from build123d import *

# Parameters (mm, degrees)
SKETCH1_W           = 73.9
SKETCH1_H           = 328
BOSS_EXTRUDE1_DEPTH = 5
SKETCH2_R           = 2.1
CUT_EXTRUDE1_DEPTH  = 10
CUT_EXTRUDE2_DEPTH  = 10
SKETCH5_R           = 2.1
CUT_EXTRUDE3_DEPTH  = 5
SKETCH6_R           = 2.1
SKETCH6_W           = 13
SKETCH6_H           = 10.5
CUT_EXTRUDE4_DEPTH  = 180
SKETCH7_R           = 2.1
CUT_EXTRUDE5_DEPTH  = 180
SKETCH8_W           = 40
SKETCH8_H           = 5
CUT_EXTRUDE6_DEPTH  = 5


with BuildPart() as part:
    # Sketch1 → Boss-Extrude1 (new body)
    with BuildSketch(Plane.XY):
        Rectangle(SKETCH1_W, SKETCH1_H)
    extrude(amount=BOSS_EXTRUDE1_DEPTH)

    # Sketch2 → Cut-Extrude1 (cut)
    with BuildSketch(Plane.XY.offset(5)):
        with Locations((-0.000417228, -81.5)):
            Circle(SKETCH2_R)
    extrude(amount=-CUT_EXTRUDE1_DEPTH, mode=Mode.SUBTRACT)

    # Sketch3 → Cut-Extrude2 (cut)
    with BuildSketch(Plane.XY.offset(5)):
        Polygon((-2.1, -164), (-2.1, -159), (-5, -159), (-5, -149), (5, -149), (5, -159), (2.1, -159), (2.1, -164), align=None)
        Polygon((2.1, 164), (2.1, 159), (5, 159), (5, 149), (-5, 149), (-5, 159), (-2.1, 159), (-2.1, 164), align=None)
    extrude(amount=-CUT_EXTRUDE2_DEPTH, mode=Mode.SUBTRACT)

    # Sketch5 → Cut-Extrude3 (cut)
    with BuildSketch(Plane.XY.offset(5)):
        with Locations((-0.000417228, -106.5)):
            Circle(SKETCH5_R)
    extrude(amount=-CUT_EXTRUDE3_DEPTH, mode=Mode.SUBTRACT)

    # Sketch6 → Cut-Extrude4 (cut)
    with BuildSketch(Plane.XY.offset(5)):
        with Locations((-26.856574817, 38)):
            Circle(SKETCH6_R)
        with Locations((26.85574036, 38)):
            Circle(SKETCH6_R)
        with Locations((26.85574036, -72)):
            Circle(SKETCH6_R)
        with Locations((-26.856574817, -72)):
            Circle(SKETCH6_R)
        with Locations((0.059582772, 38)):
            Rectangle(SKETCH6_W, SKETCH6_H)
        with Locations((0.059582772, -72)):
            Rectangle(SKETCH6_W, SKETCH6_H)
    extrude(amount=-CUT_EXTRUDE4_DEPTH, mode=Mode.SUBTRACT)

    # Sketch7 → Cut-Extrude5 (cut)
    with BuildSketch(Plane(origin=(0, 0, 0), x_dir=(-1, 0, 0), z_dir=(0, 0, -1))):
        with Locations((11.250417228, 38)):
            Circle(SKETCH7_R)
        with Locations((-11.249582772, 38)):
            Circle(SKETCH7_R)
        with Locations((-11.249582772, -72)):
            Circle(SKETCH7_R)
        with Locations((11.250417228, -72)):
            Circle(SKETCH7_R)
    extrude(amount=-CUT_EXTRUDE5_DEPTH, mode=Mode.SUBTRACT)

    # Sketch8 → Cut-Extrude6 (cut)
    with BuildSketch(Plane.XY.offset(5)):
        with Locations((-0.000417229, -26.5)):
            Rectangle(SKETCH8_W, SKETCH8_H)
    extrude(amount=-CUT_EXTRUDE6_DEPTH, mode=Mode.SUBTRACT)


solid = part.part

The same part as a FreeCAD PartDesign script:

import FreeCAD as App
import Part
import Sketcher

V = App.Vector

doc = App.newDocument("Part")
params = doc.addObject("Spreadsheet::Sheet", "Params")
for row, (alias, value) in enumerate([
    ("sketch1_height", "328 mm"),
    ("sketch1_width", "73.9 mm"),
    ("pad1_length", "5 mm"),
    ("sketch2_diameter", "4.2 mm"),
    ("pocket1_length", "10 mm"),
    ("sketch3_width", "10 mm"),
    ("sketch3_height", "5 mm"),
    ("sketch3_width2", "4.2 mm"),
    ("pocket2_length", "10 mm"),
    ("sketch4_diameter", "4.2 mm"),
    ("pocket3_length", "5 mm"),
    ("sketch5_diameter", "4.2 mm"),
    ("sketch5_width", "13 mm"),
    ("sketch5_height", "10.5 mm"),
    ("pocket4_length", "180 mm"),
    ("sketch6_diameter", "4.2 mm"),
    ("pocket5_length", "180 mm"),
    ("sketch7_width", "40 mm"),
    ("sketch7_height", "5 mm"),
    ("pocket6_length", "5 mm"),
], start=1):
    params.set(f"A{row}", alias)
    params.set(f"B{row}", "=" + value)
    params.setAlias(f"B{row}", alias)

body = doc.addObject("PartDesign::Body", "Body")

# Sketch on XY plane
sketch1 = body.newObject("Sketcher::SketchObject", "Sketch")
sketch1.AttachmentSupport = (doc.getObject("XY_Plane"), [""])
sketch1.MapMode = "FlatFace"
sketch1.addGeometry([
    Part.LineSegment(V(-37, 164, 0), V(-37, -164, 0)),
    Part.LineSegment(V(-37, -164, 0), V(37, -164, 0)),
    Part.LineSegment(V(37, -164, 0), V(37, 164, 0)),
    Part.LineSegment(V(37, 164, 0), V(-37, 164, 0)),
], False)
sketch1.addConstraint([
    Sketcher.Constraint("Coincident", 0, 2, 1, 1),
    Sketcher.Constraint("Coincident", 1, 2, 2, 1),
    Sketcher.Constraint("Coincident", 2, 2, 3, 1),
    Sketcher.Constraint("Coincident", 3, 2, 0, 1),
    Sketcher.Constraint("Vertical", 0),
    Sketcher.Constraint("Horizontal", 1),
    Sketcher.Constraint("Vertical", 2),
    Sketcher.Constraint("Horizontal", 3),
    Sketcher.Constraint("Symmetric", 0, 2, 2, 2, -1, 1),
    Sketcher.Constraint("DistanceY", 0, 2, 0, 1, 328.0),
    Sketcher.Constraint("DistanceX", 1, 1, 1, 2, 73.9),
])
sketch1.setExpression("Constraints[9]", "Params.sketch1_height")
sketch1.setExpression("Constraints[10]", "Params.sketch1_width")
pad1 = body.newObject("PartDesign::Pad", "Pad")
pad1.Profile = sketch1
pad1.setExpression("Length", "Params.pad1_length")

# Sketch on XY plane
sketch2 = body.newObject("Sketcher::SketchObject", "Sketch001")
sketch2.AttachmentSupport = (doc.getObject("XY_Plane"), [""])
sketch2.MapMode = "FlatFace"
sketch2.AttachmentOffset = App.Placement(V(0, 0, 5), App.Rotation())
sketch2.addGeometry(Part.Circle(V(0, -81.5, 0), V(0, 0, 1), 2.1), False)
sketch2.addConstraint([
    Sketcher.Constraint("Diameter", 0, 4.2),
    Sketcher.Constraint("DistanceY", 0, 3, -1, 1, 81.5),
    Sketcher.Constraint("DistanceX", 0, 3, -1, 1, 0.000417),
])
sketch2.setExpression("Constraints[0]", "Params.sketch2_diameter")
pocket1 = body.newObject("PartDesign::Pocket", "Pocket")
pocket1.Profile = sketch2
pocket1.setExpression("Length", "Params.pocket1_length")

# Sketch on XY plane
sketch3 = body.newObject("Sketcher::SketchObject", "Sketch002")
sketch3.AttachmentSupport = (doc.getObject("XY_Plane"), [""])
sketch3.MapMode = "FlatFace"
sketch3.AttachmentOffset = App.Placement(V(0, 0, 5), App.Rotation())
sketch3.addGeometry([
    Part.LineSegment(V(-2.1, -159, 0), V(-2.1, -164, 0)),  # 0
    Part.LineSegment(V(-2.1, -164, 0), V(2.1, -164, 0)),  # 1
    Part.LineSegment(V(2.1, -164, 0), V(2.1, -159, 0)),  # 2
    Part.LineSegment(V(2.1, -159, 0), V(5, -159, 0)),  # 3
    Part.LineSegment(V(5, -159, 0), V(5, -149, 0)),  # 4
    Part.LineSegment(V(5, -149, 0), V(-5, -149, 0)),  # 5
    Part.LineSegment(V(-5, -149, 0), V(-5, -159, 0)),  # 6
    Part.LineSegment(V(-5, -159, 0), V(-2.1, -159, 0)),  # 7
    Part.LineSegment(V(2.1, 159, 0), V(2.1, 164, 0)),  # 8
    Part.LineSegment(V(2.1, 164, 0), V(-2.1, 164, 0)),  # 9
    Part.LineSegment(V(-2.1, 164, 0), V(-2.1, 159, 0)),  # 10
    Part.LineSegment(V(-2.1, 159, 0), V(-5, 159, 0)),  # 11
    Part.LineSegment(V(-5, 159, 0), V(-5, 149, 0)),  # 12
    Part.LineSegment(V(-5, 149, 0), V(5, 149, 0)),  # 13
    Part.LineSegment(V(5, 149, 0), V(5, 159, 0)),  # 14
    Part.LineSegment(V(5, 159, 0), V(2.1, 159, 0)),  # 15
], False)
sketch3.addConstraint([
    Sketcher.Constraint("Coincident", 0, 2, 1, 1),
    Sketcher.Constraint("Coincident", 1, 2, 2, 1),
    Sketcher.Constraint("Coincident", 2, 2, 3, 1),
    Sketcher.Constraint("Coincident", 3, 2, 4, 1),
    Sketcher.Constraint("Coincident", 4, 2, 5, 1),
    Sketcher.Constraint("Coincident", 5, 2, 6, 1),
    Sketcher.Constraint("Coincident", 6, 2, 7, 1),
    Sketcher.Constraint("Coincident", 7, 2, 0, 1),
    Sketcher.Constraint("Coincident", 8, 2, 9, 1),
    Sketcher.Constraint("Coincident", 9, 2, 10, 1),
    Sketcher.Constraint("Coincident", 10, 2, 11, 1),
    Sketcher.Constraint("Coincident", 11, 2, 12, 1),
    Sketcher.Constraint("Coincident", 12, 2, 13, 1),
    Sketcher.Constraint("Coincident", 13, 2, 14, 1),
    Sketcher.Constraint("Coincident", 14, 2, 15, 1),
    Sketcher.Constraint("Coincident", 15, 2, 8, 1),
    Sketcher.Constraint("Vertical", 0),
    Sketcher.Constraint("Horizontal", 1),
    Sketcher.Constraint("Vertical", 2),
    Sketcher.Constraint("Horizontal", 3),
    Sketcher.Constraint("Vertical", 4),
    Sketcher.Constraint("Horizontal", 5),
    Sketcher.Constraint("Vertical", 6),
    Sketcher.Constraint("Horizontal", 7),
    Sketcher.Constraint("Vertical", 8),
    Sketcher.Constraint("Horizontal", 9),
    Sketcher.Constraint("Vertical", 10),
    Sketcher.Constraint("Horizontal", 11),
    Sketcher.Constraint("Vertical", 12),
    Sketcher.Constraint("Horizontal", 13),
    Sketcher.Constraint("Vertical", 14),
    Sketcher.Constraint("Horizontal", 15),
    Sketcher.Constraint("Symmetric", 0, 2, 8, 2, -1, 1),
    Sketcher.Constraint("Symmetric", 2, 2, 10, 2, -1, 1),
    Sketcher.Constraint("Symmetric", 4, 2, 12, 2, -1, 1),
    Sketcher.Constraint("Symmetric", 6, 2, 14, 2, -1, 1),
    Sketcher.Constraint("Symmetric", 3, 2, 6, 2, -2),
    Sketcher.Constraint("Vertical", 2, 2, 8, 2),
    Sketcher.Constraint("Equal", 13, 4),
    Sketcher.Constraint("DistanceX", 5, 2, 5, 1, 10.0),
    Sketcher.Constraint("DistanceY", 0, 2, 0, 1, 5.0),
    Sketcher.Constraint("DistanceX", 1, 1, 1, 2, 4.2),
    Sketcher.Constraint("DistanceY", 0, 2, -1, 1, 164.0),
])
sketch3.setExpression("Constraints[39]", "Params.sketch3_width")
sketch3.setExpression("Constraints[40]", "Params.sketch3_height")
sketch3.setExpression("Constraints[41]", "Params.sketch3_width2")
pocket2 = body.newObject("PartDesign::Pocket", "Pocket001")
pocket2.Profile = sketch3
pocket2.setExpression("Length", "Params.pocket2_length")

# Sketch on XY plane
sketch4 = body.newObject("Sketcher::SketchObject", "Sketch003")
sketch4.AttachmentSupport = (doc.getObject("XY_Plane"), [""])
sketch4.MapMode = "FlatFace"
sketch4.AttachmentOffset = App.Placement(V(0, 0, 5), App.Rotation())
sketch4.addGeometry(Part.Circle(V(0, -106.5, 0), V(0, 0, 1), 2.1), False)
sketch4.addConstraint([
    Sketcher.Constraint("Diameter", 0, 4.2),
    Sketcher.Constraint("DistanceY", 0, 3, -1, 1, 106.5),
    Sketcher.Constraint("DistanceX", 0, 3, -1, 1, 0.000417),
])
sketch4.setExpression("Constraints[0]", "Params.sketch4_diameter")
pocket3 = body.newObject("PartDesign::Pocket", "Pocket002")
pocket3.Profile = sketch4
pocket3.setExpression("Length", "Params.pocket3_length")

# Sketch on XY plane
sketch5 = body.newObject("Sketcher::SketchObject", "Sketch004")
sketch5.AttachmentSupport = (doc.getObject("XY_Plane"), [""])
sketch5.MapMode = "FlatFace"
sketch5.AttachmentOffset = App.Placement(V(0, 0, 5), App.Rotation())
sketch5.addGeometry([
    Part.Circle(V(-26.9, 38, 0), V(0, 0, 1), 2.1),  # 0
    Part.Circle(V(26.9, 38, 0), V(0, 0, 1), 2.1),  # 1
    Part.Circle(V(26.9, -72, 0), V(0, 0, 1), 2.1),  # 2
    Part.Circle(V(-26.9, -72, 0), V(0, 0, 1), 2.1),  # 3
    Part.LineSegment(V(-6.4, 43.2, 0), V(-6.4, 32.8, 0)),  # 4
    Part.LineSegment(V(-6.4, 32.8, 0), V(6.6, 32.8, 0)),  # 5
    Part.LineSegment(V(6.6, 32.8, 0), V(6.6, 43.2, 0)),  # 6
    Part.LineSegment(V(6.6, 43.2, 0), V(-6.4, 43.2, 0)),  # 7
    Part.LineSegment(V(-6.4, -66.8, 0), V(-6.4, -77.2, 0)),  # 8
    Part.LineSegment(V(-6.4, -77.2, 0), V(6.6, -77.2, 0)),  # 9
    Part.LineSegment(V(6.6, -77.2, 0), V(6.6, -66.8, 0)),  # 10
    Part.LineSegment(V(6.6, -66.8, 0), V(-6.4, -66.8, 0)),  # 11
], False)
sketch5.addConstraint([
    Sketcher.Constraint("Coincident", 4, 2, 5, 1),
    Sketcher.Constraint("Coincident", 5, 2, 6, 1),
    Sketcher.Constraint("Coincident", 6, 2, 7, 1),
    Sketcher.Constraint("Coincident", 7, 2, 4, 1),
    Sketcher.Constraint("Coincident", 8, 2, 9, 1),
    Sketcher.Constraint("Coincident", 9, 2, 10, 1),
    Sketcher.Constraint("Coincident", 10, 2, 11, 1),
    Sketcher.Constraint("Coincident", 11, 2, 8, 1),
    Sketcher.Constraint("Vertical", 4),
    Sketcher.Constraint("Horizontal", 5),
    Sketcher.Constraint("Vertical", 6),
    Sketcher.Constraint("Horizontal", 7),
    Sketcher.Constraint("Vertical", 8),
    Sketcher.Constraint("Horizontal", 9),
    Sketcher.Constraint("Vertical", 10),
    Sketcher.Constraint("Horizontal", 11),
    Sketcher.Constraint("Equal", 0, 1),
    Sketcher.Constraint("Equal", 1, 2),
    Sketcher.Constraint("Equal", 2, 3),
    Sketcher.Constraint("Horizontal", 0, 3, 1, 3),
    Sketcher.Constraint("Horizontal", 2, 3, 3, 3),
    Sketcher.Constraint("Vertical", 1, 3, 2, 3),
    Sketcher.Constraint("Vertical", 0, 3, 3, 3),
    Sketcher.Constraint("Vertical", 7, 2, 8, 2),
    Sketcher.Constraint("Vertical", 6, 2, 9, 2),
    Sketcher.Constraint("Equal", 6, 8),
    Sketcher.Constraint("Diameter", 0, 4.2),
    Sketcher.Constraint("DistanceX", 5, 1, 5, 2, 13.0),
    Sketcher.Constraint("DistanceY", 4, 2, 4, 1, 10.5),
    Sketcher.Constraint("DistanceY", -1, 1, 0, 3, 38.0),
    Sketcher.Constraint("DistanceY", 2, 3, -1, 1, 72.0),
    Sketcher.Constraint("DistanceY", 8, 2, 4, 2, 110.0),
    Sketcher.Constraint("DistanceY", -1, 1, 4, 2, 32.75),
    Sketcher.Constraint("DistanceX", -1, 1, 1, 3, 26.85574),
    Sketcher.Constraint("DistanceX", 0, 3, -1, 1, 26.856575),
    Sketcher.Constraint("DistanceX", 4, 2, -1, 1, 6.440417),
])
sketch5.setExpression("Constraints[26]", "Params.sketch5_diameter")
sketch5.setExpression("Constraints[27]", "Params.sketch5_width")
sketch5.setExpression("Constraints[28]", "Params.sketch5_height")
pocket4 = body.newObject("PartDesign::Pocket", "Pocket003")
pocket4.Profile = sketch5
pocket4.setExpression("Length", "Params.pocket4_length")

# Sketch on XY plane
sketch6 = body.newObject("Sketcher::SketchObject", "Sketch005")
sketch6.AttachmentSupport = (doc.getObject("XY_Plane"), [""])
sketch6.MapMode = "FlatFace"
sketch6.addGeometry([
    Part.Circle(V(-11.3, 38, 0), V(0, 0, 1), 2.1),
    Part.Circle(V(11.2, 38, 0), V(0, 0, 1), 2.1),
    Part.Circle(V(11.2, -72, 0), V(0, 0, 1), 2.1),
    Part.Circle(V(-11.3, -72, 0), V(0, 0, 1), 2.1),
], False)
sketch6.addConstraint([
    Sketcher.Constraint("Equal", 0, 1),
    Sketcher.Constraint("Equal", 1, 2),
    Sketcher.Constraint("Equal", 2, 3),
    Sketcher.Constraint("Horizontal", 0, 3, 1, 3),
    Sketcher.Constraint("Horizontal", 2, 3, 3, 3),
    Sketcher.Constraint("Vertical", 1, 3, 2, 3),
    Sketcher.Constraint("Vertical", 0, 3, 3, 3),
    Sketcher.Constraint("Diameter", 0, 4.2),
    Sketcher.Constraint("DistanceY", -1, 1, 0, 3, 38.0),
    Sketcher.Constraint("DistanceY", 2, 3, -1, 1, 72.0),
    Sketcher.Constraint("DistanceX", 0, 3, 1, 3, 22.5),
    Sketcher.Constraint("DistanceX", 0, 3, -1, 1, 11.250417),
])
sketch6.setExpression("Constraints[7]", "Params.sketch6_diameter")
pocket5 = body.newObject("PartDesign::Pocket", "Pocket004")
pocket5.Profile = sketch6
pocket5.setExpression("Length", "Params.pocket5_length")
pocket5.Reversed = True

# Sketch on XY plane
sketch7 = body.newObject("Sketcher::SketchObject", "Sketch006")
sketch7.AttachmentSupport = (doc.getObject("XY_Plane"), [""])
sketch7.MapMode = "FlatFace"
sketch7.AttachmentOffset = App.Placement(V(0, 0, 5), App.Rotation())
sketch7.addGeometry([
    Part.LineSegment(V(-20, -24, 0), V(-20, -29, 0)),
    Part.LineSegment(V(-20, -29, 0), V(20, -29, 0)),
    Part.LineSegment(V(20, -29, 0), V(20, -24, 0)),
    Part.LineSegment(V(20, -24, 0), V(-20, -24, 0)),
], False)
sketch7.addConstraint([
    Sketcher.Constraint("Coincident", 0, 2, 1, 1),
    Sketcher.Constraint("Coincident", 1, 2, 2, 1),
    Sketcher.Constraint("Coincident", 2, 2, 3, 1),
    Sketcher.Constraint("Coincident", 3, 2, 0, 1),
    Sketcher.Constraint("Vertical", 0),
    Sketcher.Constraint("Horizontal", 1),
    Sketcher.Constraint("Vertical", 2),
    Sketcher.Constraint("Horizontal", 3),
    Sketcher.Constraint("DistanceX", 1, 1, 1, 2, 40.0),
    Sketcher.Constraint("DistanceY", 0, 2, 0, 1, 5.0),
    Sketcher.Constraint("DistanceY", 0, 2, -1, 1, 29.0),
    Sketcher.Constraint("DistanceX", 0, 2, -1, 1, 20.000417),
])
sketch7.setExpression("Constraints[8]", "Params.sketch7_width")
sketch7.setExpression("Constraints[9]", "Params.sketch7_height")
pocket6 = body.newObject("PartDesign::Pocket", "Pocket005")
pocket6.Profile = sketch7
pocket6.setExpression("Length", "Params.pocket6_length")

doc.recompute()
